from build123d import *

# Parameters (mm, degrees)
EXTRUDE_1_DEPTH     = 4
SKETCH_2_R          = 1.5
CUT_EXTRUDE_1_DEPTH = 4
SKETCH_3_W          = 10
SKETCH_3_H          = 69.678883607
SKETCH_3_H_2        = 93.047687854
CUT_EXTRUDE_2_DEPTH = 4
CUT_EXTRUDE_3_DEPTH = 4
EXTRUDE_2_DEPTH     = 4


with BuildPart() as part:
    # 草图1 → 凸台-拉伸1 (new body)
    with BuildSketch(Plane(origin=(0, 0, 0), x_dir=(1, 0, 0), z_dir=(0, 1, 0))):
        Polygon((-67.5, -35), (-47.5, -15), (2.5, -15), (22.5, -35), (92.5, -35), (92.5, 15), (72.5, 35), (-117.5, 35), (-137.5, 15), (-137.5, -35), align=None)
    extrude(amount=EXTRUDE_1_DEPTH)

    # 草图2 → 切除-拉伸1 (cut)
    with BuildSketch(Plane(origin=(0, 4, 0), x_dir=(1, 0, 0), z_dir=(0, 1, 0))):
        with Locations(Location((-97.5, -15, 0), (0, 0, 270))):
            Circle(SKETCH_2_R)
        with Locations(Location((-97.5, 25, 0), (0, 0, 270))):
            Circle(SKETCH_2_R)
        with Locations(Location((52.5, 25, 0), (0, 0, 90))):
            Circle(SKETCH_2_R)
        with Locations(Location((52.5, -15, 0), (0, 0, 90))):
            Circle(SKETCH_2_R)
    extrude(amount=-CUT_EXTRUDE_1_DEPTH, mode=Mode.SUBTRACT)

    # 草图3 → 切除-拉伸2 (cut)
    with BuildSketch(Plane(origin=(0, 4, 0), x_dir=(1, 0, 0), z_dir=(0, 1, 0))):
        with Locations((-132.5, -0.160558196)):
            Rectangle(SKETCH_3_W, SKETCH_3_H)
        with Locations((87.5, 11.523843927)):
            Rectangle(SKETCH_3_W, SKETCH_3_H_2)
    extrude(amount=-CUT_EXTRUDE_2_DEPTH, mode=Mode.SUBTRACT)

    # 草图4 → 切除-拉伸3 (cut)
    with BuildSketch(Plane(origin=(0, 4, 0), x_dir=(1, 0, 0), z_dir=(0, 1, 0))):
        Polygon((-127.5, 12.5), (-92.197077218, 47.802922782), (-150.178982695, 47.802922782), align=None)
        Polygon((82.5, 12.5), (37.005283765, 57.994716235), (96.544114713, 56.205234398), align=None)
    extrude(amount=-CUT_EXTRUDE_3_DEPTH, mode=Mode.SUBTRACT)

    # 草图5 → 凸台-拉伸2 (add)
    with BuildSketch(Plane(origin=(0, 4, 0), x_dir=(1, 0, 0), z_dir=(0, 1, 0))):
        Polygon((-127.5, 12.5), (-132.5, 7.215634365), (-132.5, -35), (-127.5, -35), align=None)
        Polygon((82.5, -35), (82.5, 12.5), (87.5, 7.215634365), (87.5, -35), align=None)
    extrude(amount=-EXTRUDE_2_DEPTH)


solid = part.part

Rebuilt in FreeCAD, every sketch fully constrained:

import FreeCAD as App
import Part
import Sketcher
Q = App.Units.Quantity


def add_polygon(sketch, points):
    """Adds a closed chain of lines whose ends are joined by coincident constraints."""
    first, n = sketch.GeometryCount, len(points)
    for a, b in zip(points, points[1:] + points[:1]):
        sketch.addGeometry(Part.LineSegment(App.Vector(*a, 0), App.Vector(*b, 0)), False)
    for i in range(n):
        sketch.addConstraint(Sketcher.Constraint("Coincident", first + i, 2, first + (i + 1) % n, 1))

doc = App.newDocument("Part")
body = doc.addObject("PartDesign::Body", "Body")

sketch1 = body.newObject("Sketcher::SketchObject", "Sketch")
sketch1.AttachmentSupport = (doc.getObject("XZ_Plane"), [""])
sketch1.MapMode = "FlatFace"
add_polygon(sketch1, [(-68, 35), (-48, 15), (2, 15), (22, 35), (92, 35), (92, -15), (72, -35), (-118, -35), (-138, -15), (-138, 35)])
sketch1.addConstraint([
    Sketcher.Constraint("Horizontal", 1),
    Sketcher.Constraint("Horizontal", 3),
    Sketcher.Constraint("Vertical", 4),
    Sketcher.Constraint("Horizontal", 6),
    Sketcher.Constraint("Vertical", 8),
    Sketcher.Constraint("Horizontal", 9),
    Sketcher.Constraint("Perpendicular", 0, 2),
    Sketcher.Constraint("Parallel", 2, 5),
    Sketcher.Constraint("Perpendicular", 5, 7),
    Sketcher.Constraint("Horizontal", 4, 2, 7, 2),
    Sketcher.Constraint("Horizontal", 3, 2, 8, 2),
    Sketcher.Constraint("Equal", 3, 9),
    Sketcher.Constraint("Equal", 1, 4),
    Sketcher.Constraint("Equal", 0, 2),
    Sketcher.Constraint("Equal", 2, 5),
    Sketcher.Constraint("DistanceX", 1, 1, 1, 2, 50.0),
    Sketcher.Constraint("DistanceX", 3, 1, 3, 2, 70.0),
    Sketcher.Constraint("DistanceY", -1, 1, 0, 2, 15.0),
    Sketcher.Constraint("DistanceY", -1, 1, 2, 2, 35.0),
    Sketcher.Constraint("DistanceX", 0, 2, -1, 1, 47.5),
])
pad1 = body.newObject("PartDesign::Pad", "Pad")
pad1.Profile = sketch1
pad1.Length = 4
pad1.Reversed = True

sketch2 = body.newObject("Sketcher::SketchObject", "Sketch001")
sketch2.AttachmentSupport = (doc.getObject("XZ_Plane"), [""])
sketch2.MapMode = "FlatFace"
sketch2.AttachmentOffset = App.Placement(App.Vector(0, 0, -4), App.Rotation())
sketch2.addGeometry([
    Part.Circle(App.Vector(-97.5, 15, 0), App.Vector(0, 0, 1), 1.5),
    Part.Circle(App.Vector(-97.5, -25, 0), App.Vector(0, 0, 1), 1.5),
    Part.Circle(App.Vector(52.5, -25, 0), App.Vector(0, 0, 1), 1.5),
    Part.Circle(App.Vector(52.5, 15, 0), App.Vector(0, 0, 1), 1.5),
], False)
sketch2.addConstraint([
    Sketcher.Constraint("Equal", 0, 1),
    Sketcher.Constraint("Equal", 1, 2),
    Sketcher.Constraint("Equal", 2, 3),
    Sketcher.Constraint("Horizontal", 1, 3, 2, 3),
    Sketcher.Constraint("Horizontal", 0, 3, 3, 3),
    Sketcher.Constraint("Vertical", 0, 3, 1, 3),
    Sketcher.Constraint("Vertical", 2, 3, 3, 3),
    Sketcher.Constraint("Diameter", 0, 3.0),
    Sketcher.Constraint("DistanceY", -1, 1, 0, 3, 15.0),
    Sketcher.Constraint("DistanceY", 1, 3, -1, 1, 25.0),
    Sketcher.Constraint("DistanceX", 1, 3, 2, 3, 150.0),
    Sketcher.Constraint("DistanceX", 0, 3, -1, 1, 97.5),
])
pocket1 = body.newObject("PartDesign::Pocket", "Pocket")
pocket1.Profile = sketch2
pocket1.Length = 4
pocket1.Reversed = True

sketch3 = body.newObject("Sketcher::SketchObject", "Sketch002")
sketch3.AttachmentSupport = (doc.getObject("XZ_Plane"), [""])
sketch3.MapMode = "FlatFace"
sketch3.AttachmentOffset = App.Placement(App.Vector(0, 0, -4), App.Rotation())
add_polygon(sketch3, [(-138, -35), (-138, 35), (-128, 35), (-128, -35)])
add_polygon(sketch3, [(82, -58), (82, 35), (92, 35), (92, -58)])
sketch3.addConstraint([
    Sketcher.Constraint("Vertical", 0),
    Sketcher.Constraint("Horizontal", 1),
    Sketcher.Constraint("Vertical", 2),
    Sketcher.Constraint("Horizontal", 3),
    Sketcher.Constraint("Vertical", 4),
    Sketcher.Constraint("Horizontal", 5),
    Sketcher.Constraint("Vertical", 6),
    Sketcher.Constraint("Horizontal", 7),
    Sketcher.Constraint("Horizontal", 1, 2, 4, 2),
    Sketcher.Constraint("Equal", 3, 5),
    Sketcher.Constraint("DistanceX", 1, 1, 1, 2, 10.0),
    Sketcher.Constraint("DistanceY", -1, 1, 0, 2, 35.0),
    Sketcher.Constraint("DistanceX", 1, 2, 4, 2, 210.0),
    Sketcher.Constraint("DistanceX", 0, 2, -1, 1, 137.5),
    Sketcher.Constraint("DistanceY", 0, 1, 0, 2, 69.678884),
    Sketcher.Constraint("DistanceY", 4, 1, 4, 2, 93.047688),
])
pocket2 = body.newObject("PartDesign::Pocket", "Pocket001")
pocket2.Profile = sketch3
pocket2.Length = 4
pocket2.Reversed = True

sketch4 = body.newObject("Sketcher::SketchObject", "Sketch003")
sketch4.AttachmentSupport = (doc.getObject("XZ_Plane"), [""])
sketch4.MapMode = "FlatFace"
sketch4.AttachmentOffset = App.Placement(App.Vector(0, 0, -4), App.Rotation())
add_polygon(sketch4, [(-128, -12), (-92, -48), (-150, -48)])
add_polygon(sketch4, [(37, -58), (82, -12), (97, -56)])
sketch4.addConstraint([
    Sketcher.Constraint("Horizontal", 1),
    Sketcher.Constraint("Perpendicular", 0, 3),
    Sketcher.Constraint("Horizontal", 2, 2, 3, 2),
    Sketcher.Constraint("Angle", 0, Q("-45 deg")),
    Sketcher.Constraint("DistanceX", 2, 2, 3, 2, 210.0),
    Sketcher.Constraint("DistanceX", 2, 2, -1, 1, 127.5),
    Sketcher.Constraint("DistanceY", 2, 2, -1, 1, 12.5),
    Sketcher.Constraint("Distance", 4, 45.90626),
    Sketcher.Constraint("DistanceX", 1, 2, 1, 1, 57.981905),
    Sketcher.Constraint("DistanceX", 0, 2, 4, 2, 188.741192),
    Sketcher.Constraint("DistanceY", 4, 2, 0, 2, 8.402312),
    Sketcher.Constraint("DistanceX", 5, 2, 4, 2, 59.538831),
])
pocket3 = body.newObject("PartDesign::Pocket", "Pocket002")
pocket3.Profile = sketch4
pocket3.Length = 4
pocket3.Reversed = True

sketch5 = body.newObject("Sketcher::SketchObject", "Sketch004")
sketch5.AttachmentSupport = (doc.getObject("XZ_Plane"), [""])
sketch5.MapMode = "FlatFace"
sketch5.AttachmentOffset = App.Placement(App.Vector(0, 0, -4), App.Rotation())
add_polygon(sketch5, [(-128, -12), (-132, -7), (-132, 35), (-128, 35)])
add_polygon(sketch5, [(82, -12), (82, 35), (88, 35), (88, -7)])
sketch5.addConstraint([
    Sketcher.Constraint("Vertical", 1),
    Sketcher.Constraint("Horizontal", 2),
    Sketcher.Constraint("Vertical", 3),
    Sketcher.Constraint("Vertical", 4),
    Sketcher.Constraint("Horizontal", 5),
    Sketcher.Constraint("Vertical", 6),
    Sketcher.Constraint("Horizontal", 2, 2, 4, 2),
    Sketcher.Constraint("Horizontal", 0, 2, 6, 2),
    Sketcher.Constraint("Horizontal", 3, 2, 7, 2),
    Sketcher.Constraint("Equal", 2, 5),
    Sketcher.Constraint("DistanceX", 2, 1, 2, 2, 5.0),
    Sketcher.Constraint("DistanceY", 3, 2, 3, 1, 47.5),
    Sketcher.Constraint("DistanceY", -1, 1, 1, 2, 35.0),
    Sketcher.Constraint("DistanceX", 2, 2, 4, 2, 210.0),
    Sketcher.Constraint("DistanceX", 0, 2, -1, 1, 132.5),
    Sketcher.Constraint("DistanceY", 1, 1, 1, 2, 42.215634),
])
pad2 = body.newObject("PartDesign::Pad", "Pad001")
pad2.Profile = sketch5
pad2.Length = 4

doc.recompute()
